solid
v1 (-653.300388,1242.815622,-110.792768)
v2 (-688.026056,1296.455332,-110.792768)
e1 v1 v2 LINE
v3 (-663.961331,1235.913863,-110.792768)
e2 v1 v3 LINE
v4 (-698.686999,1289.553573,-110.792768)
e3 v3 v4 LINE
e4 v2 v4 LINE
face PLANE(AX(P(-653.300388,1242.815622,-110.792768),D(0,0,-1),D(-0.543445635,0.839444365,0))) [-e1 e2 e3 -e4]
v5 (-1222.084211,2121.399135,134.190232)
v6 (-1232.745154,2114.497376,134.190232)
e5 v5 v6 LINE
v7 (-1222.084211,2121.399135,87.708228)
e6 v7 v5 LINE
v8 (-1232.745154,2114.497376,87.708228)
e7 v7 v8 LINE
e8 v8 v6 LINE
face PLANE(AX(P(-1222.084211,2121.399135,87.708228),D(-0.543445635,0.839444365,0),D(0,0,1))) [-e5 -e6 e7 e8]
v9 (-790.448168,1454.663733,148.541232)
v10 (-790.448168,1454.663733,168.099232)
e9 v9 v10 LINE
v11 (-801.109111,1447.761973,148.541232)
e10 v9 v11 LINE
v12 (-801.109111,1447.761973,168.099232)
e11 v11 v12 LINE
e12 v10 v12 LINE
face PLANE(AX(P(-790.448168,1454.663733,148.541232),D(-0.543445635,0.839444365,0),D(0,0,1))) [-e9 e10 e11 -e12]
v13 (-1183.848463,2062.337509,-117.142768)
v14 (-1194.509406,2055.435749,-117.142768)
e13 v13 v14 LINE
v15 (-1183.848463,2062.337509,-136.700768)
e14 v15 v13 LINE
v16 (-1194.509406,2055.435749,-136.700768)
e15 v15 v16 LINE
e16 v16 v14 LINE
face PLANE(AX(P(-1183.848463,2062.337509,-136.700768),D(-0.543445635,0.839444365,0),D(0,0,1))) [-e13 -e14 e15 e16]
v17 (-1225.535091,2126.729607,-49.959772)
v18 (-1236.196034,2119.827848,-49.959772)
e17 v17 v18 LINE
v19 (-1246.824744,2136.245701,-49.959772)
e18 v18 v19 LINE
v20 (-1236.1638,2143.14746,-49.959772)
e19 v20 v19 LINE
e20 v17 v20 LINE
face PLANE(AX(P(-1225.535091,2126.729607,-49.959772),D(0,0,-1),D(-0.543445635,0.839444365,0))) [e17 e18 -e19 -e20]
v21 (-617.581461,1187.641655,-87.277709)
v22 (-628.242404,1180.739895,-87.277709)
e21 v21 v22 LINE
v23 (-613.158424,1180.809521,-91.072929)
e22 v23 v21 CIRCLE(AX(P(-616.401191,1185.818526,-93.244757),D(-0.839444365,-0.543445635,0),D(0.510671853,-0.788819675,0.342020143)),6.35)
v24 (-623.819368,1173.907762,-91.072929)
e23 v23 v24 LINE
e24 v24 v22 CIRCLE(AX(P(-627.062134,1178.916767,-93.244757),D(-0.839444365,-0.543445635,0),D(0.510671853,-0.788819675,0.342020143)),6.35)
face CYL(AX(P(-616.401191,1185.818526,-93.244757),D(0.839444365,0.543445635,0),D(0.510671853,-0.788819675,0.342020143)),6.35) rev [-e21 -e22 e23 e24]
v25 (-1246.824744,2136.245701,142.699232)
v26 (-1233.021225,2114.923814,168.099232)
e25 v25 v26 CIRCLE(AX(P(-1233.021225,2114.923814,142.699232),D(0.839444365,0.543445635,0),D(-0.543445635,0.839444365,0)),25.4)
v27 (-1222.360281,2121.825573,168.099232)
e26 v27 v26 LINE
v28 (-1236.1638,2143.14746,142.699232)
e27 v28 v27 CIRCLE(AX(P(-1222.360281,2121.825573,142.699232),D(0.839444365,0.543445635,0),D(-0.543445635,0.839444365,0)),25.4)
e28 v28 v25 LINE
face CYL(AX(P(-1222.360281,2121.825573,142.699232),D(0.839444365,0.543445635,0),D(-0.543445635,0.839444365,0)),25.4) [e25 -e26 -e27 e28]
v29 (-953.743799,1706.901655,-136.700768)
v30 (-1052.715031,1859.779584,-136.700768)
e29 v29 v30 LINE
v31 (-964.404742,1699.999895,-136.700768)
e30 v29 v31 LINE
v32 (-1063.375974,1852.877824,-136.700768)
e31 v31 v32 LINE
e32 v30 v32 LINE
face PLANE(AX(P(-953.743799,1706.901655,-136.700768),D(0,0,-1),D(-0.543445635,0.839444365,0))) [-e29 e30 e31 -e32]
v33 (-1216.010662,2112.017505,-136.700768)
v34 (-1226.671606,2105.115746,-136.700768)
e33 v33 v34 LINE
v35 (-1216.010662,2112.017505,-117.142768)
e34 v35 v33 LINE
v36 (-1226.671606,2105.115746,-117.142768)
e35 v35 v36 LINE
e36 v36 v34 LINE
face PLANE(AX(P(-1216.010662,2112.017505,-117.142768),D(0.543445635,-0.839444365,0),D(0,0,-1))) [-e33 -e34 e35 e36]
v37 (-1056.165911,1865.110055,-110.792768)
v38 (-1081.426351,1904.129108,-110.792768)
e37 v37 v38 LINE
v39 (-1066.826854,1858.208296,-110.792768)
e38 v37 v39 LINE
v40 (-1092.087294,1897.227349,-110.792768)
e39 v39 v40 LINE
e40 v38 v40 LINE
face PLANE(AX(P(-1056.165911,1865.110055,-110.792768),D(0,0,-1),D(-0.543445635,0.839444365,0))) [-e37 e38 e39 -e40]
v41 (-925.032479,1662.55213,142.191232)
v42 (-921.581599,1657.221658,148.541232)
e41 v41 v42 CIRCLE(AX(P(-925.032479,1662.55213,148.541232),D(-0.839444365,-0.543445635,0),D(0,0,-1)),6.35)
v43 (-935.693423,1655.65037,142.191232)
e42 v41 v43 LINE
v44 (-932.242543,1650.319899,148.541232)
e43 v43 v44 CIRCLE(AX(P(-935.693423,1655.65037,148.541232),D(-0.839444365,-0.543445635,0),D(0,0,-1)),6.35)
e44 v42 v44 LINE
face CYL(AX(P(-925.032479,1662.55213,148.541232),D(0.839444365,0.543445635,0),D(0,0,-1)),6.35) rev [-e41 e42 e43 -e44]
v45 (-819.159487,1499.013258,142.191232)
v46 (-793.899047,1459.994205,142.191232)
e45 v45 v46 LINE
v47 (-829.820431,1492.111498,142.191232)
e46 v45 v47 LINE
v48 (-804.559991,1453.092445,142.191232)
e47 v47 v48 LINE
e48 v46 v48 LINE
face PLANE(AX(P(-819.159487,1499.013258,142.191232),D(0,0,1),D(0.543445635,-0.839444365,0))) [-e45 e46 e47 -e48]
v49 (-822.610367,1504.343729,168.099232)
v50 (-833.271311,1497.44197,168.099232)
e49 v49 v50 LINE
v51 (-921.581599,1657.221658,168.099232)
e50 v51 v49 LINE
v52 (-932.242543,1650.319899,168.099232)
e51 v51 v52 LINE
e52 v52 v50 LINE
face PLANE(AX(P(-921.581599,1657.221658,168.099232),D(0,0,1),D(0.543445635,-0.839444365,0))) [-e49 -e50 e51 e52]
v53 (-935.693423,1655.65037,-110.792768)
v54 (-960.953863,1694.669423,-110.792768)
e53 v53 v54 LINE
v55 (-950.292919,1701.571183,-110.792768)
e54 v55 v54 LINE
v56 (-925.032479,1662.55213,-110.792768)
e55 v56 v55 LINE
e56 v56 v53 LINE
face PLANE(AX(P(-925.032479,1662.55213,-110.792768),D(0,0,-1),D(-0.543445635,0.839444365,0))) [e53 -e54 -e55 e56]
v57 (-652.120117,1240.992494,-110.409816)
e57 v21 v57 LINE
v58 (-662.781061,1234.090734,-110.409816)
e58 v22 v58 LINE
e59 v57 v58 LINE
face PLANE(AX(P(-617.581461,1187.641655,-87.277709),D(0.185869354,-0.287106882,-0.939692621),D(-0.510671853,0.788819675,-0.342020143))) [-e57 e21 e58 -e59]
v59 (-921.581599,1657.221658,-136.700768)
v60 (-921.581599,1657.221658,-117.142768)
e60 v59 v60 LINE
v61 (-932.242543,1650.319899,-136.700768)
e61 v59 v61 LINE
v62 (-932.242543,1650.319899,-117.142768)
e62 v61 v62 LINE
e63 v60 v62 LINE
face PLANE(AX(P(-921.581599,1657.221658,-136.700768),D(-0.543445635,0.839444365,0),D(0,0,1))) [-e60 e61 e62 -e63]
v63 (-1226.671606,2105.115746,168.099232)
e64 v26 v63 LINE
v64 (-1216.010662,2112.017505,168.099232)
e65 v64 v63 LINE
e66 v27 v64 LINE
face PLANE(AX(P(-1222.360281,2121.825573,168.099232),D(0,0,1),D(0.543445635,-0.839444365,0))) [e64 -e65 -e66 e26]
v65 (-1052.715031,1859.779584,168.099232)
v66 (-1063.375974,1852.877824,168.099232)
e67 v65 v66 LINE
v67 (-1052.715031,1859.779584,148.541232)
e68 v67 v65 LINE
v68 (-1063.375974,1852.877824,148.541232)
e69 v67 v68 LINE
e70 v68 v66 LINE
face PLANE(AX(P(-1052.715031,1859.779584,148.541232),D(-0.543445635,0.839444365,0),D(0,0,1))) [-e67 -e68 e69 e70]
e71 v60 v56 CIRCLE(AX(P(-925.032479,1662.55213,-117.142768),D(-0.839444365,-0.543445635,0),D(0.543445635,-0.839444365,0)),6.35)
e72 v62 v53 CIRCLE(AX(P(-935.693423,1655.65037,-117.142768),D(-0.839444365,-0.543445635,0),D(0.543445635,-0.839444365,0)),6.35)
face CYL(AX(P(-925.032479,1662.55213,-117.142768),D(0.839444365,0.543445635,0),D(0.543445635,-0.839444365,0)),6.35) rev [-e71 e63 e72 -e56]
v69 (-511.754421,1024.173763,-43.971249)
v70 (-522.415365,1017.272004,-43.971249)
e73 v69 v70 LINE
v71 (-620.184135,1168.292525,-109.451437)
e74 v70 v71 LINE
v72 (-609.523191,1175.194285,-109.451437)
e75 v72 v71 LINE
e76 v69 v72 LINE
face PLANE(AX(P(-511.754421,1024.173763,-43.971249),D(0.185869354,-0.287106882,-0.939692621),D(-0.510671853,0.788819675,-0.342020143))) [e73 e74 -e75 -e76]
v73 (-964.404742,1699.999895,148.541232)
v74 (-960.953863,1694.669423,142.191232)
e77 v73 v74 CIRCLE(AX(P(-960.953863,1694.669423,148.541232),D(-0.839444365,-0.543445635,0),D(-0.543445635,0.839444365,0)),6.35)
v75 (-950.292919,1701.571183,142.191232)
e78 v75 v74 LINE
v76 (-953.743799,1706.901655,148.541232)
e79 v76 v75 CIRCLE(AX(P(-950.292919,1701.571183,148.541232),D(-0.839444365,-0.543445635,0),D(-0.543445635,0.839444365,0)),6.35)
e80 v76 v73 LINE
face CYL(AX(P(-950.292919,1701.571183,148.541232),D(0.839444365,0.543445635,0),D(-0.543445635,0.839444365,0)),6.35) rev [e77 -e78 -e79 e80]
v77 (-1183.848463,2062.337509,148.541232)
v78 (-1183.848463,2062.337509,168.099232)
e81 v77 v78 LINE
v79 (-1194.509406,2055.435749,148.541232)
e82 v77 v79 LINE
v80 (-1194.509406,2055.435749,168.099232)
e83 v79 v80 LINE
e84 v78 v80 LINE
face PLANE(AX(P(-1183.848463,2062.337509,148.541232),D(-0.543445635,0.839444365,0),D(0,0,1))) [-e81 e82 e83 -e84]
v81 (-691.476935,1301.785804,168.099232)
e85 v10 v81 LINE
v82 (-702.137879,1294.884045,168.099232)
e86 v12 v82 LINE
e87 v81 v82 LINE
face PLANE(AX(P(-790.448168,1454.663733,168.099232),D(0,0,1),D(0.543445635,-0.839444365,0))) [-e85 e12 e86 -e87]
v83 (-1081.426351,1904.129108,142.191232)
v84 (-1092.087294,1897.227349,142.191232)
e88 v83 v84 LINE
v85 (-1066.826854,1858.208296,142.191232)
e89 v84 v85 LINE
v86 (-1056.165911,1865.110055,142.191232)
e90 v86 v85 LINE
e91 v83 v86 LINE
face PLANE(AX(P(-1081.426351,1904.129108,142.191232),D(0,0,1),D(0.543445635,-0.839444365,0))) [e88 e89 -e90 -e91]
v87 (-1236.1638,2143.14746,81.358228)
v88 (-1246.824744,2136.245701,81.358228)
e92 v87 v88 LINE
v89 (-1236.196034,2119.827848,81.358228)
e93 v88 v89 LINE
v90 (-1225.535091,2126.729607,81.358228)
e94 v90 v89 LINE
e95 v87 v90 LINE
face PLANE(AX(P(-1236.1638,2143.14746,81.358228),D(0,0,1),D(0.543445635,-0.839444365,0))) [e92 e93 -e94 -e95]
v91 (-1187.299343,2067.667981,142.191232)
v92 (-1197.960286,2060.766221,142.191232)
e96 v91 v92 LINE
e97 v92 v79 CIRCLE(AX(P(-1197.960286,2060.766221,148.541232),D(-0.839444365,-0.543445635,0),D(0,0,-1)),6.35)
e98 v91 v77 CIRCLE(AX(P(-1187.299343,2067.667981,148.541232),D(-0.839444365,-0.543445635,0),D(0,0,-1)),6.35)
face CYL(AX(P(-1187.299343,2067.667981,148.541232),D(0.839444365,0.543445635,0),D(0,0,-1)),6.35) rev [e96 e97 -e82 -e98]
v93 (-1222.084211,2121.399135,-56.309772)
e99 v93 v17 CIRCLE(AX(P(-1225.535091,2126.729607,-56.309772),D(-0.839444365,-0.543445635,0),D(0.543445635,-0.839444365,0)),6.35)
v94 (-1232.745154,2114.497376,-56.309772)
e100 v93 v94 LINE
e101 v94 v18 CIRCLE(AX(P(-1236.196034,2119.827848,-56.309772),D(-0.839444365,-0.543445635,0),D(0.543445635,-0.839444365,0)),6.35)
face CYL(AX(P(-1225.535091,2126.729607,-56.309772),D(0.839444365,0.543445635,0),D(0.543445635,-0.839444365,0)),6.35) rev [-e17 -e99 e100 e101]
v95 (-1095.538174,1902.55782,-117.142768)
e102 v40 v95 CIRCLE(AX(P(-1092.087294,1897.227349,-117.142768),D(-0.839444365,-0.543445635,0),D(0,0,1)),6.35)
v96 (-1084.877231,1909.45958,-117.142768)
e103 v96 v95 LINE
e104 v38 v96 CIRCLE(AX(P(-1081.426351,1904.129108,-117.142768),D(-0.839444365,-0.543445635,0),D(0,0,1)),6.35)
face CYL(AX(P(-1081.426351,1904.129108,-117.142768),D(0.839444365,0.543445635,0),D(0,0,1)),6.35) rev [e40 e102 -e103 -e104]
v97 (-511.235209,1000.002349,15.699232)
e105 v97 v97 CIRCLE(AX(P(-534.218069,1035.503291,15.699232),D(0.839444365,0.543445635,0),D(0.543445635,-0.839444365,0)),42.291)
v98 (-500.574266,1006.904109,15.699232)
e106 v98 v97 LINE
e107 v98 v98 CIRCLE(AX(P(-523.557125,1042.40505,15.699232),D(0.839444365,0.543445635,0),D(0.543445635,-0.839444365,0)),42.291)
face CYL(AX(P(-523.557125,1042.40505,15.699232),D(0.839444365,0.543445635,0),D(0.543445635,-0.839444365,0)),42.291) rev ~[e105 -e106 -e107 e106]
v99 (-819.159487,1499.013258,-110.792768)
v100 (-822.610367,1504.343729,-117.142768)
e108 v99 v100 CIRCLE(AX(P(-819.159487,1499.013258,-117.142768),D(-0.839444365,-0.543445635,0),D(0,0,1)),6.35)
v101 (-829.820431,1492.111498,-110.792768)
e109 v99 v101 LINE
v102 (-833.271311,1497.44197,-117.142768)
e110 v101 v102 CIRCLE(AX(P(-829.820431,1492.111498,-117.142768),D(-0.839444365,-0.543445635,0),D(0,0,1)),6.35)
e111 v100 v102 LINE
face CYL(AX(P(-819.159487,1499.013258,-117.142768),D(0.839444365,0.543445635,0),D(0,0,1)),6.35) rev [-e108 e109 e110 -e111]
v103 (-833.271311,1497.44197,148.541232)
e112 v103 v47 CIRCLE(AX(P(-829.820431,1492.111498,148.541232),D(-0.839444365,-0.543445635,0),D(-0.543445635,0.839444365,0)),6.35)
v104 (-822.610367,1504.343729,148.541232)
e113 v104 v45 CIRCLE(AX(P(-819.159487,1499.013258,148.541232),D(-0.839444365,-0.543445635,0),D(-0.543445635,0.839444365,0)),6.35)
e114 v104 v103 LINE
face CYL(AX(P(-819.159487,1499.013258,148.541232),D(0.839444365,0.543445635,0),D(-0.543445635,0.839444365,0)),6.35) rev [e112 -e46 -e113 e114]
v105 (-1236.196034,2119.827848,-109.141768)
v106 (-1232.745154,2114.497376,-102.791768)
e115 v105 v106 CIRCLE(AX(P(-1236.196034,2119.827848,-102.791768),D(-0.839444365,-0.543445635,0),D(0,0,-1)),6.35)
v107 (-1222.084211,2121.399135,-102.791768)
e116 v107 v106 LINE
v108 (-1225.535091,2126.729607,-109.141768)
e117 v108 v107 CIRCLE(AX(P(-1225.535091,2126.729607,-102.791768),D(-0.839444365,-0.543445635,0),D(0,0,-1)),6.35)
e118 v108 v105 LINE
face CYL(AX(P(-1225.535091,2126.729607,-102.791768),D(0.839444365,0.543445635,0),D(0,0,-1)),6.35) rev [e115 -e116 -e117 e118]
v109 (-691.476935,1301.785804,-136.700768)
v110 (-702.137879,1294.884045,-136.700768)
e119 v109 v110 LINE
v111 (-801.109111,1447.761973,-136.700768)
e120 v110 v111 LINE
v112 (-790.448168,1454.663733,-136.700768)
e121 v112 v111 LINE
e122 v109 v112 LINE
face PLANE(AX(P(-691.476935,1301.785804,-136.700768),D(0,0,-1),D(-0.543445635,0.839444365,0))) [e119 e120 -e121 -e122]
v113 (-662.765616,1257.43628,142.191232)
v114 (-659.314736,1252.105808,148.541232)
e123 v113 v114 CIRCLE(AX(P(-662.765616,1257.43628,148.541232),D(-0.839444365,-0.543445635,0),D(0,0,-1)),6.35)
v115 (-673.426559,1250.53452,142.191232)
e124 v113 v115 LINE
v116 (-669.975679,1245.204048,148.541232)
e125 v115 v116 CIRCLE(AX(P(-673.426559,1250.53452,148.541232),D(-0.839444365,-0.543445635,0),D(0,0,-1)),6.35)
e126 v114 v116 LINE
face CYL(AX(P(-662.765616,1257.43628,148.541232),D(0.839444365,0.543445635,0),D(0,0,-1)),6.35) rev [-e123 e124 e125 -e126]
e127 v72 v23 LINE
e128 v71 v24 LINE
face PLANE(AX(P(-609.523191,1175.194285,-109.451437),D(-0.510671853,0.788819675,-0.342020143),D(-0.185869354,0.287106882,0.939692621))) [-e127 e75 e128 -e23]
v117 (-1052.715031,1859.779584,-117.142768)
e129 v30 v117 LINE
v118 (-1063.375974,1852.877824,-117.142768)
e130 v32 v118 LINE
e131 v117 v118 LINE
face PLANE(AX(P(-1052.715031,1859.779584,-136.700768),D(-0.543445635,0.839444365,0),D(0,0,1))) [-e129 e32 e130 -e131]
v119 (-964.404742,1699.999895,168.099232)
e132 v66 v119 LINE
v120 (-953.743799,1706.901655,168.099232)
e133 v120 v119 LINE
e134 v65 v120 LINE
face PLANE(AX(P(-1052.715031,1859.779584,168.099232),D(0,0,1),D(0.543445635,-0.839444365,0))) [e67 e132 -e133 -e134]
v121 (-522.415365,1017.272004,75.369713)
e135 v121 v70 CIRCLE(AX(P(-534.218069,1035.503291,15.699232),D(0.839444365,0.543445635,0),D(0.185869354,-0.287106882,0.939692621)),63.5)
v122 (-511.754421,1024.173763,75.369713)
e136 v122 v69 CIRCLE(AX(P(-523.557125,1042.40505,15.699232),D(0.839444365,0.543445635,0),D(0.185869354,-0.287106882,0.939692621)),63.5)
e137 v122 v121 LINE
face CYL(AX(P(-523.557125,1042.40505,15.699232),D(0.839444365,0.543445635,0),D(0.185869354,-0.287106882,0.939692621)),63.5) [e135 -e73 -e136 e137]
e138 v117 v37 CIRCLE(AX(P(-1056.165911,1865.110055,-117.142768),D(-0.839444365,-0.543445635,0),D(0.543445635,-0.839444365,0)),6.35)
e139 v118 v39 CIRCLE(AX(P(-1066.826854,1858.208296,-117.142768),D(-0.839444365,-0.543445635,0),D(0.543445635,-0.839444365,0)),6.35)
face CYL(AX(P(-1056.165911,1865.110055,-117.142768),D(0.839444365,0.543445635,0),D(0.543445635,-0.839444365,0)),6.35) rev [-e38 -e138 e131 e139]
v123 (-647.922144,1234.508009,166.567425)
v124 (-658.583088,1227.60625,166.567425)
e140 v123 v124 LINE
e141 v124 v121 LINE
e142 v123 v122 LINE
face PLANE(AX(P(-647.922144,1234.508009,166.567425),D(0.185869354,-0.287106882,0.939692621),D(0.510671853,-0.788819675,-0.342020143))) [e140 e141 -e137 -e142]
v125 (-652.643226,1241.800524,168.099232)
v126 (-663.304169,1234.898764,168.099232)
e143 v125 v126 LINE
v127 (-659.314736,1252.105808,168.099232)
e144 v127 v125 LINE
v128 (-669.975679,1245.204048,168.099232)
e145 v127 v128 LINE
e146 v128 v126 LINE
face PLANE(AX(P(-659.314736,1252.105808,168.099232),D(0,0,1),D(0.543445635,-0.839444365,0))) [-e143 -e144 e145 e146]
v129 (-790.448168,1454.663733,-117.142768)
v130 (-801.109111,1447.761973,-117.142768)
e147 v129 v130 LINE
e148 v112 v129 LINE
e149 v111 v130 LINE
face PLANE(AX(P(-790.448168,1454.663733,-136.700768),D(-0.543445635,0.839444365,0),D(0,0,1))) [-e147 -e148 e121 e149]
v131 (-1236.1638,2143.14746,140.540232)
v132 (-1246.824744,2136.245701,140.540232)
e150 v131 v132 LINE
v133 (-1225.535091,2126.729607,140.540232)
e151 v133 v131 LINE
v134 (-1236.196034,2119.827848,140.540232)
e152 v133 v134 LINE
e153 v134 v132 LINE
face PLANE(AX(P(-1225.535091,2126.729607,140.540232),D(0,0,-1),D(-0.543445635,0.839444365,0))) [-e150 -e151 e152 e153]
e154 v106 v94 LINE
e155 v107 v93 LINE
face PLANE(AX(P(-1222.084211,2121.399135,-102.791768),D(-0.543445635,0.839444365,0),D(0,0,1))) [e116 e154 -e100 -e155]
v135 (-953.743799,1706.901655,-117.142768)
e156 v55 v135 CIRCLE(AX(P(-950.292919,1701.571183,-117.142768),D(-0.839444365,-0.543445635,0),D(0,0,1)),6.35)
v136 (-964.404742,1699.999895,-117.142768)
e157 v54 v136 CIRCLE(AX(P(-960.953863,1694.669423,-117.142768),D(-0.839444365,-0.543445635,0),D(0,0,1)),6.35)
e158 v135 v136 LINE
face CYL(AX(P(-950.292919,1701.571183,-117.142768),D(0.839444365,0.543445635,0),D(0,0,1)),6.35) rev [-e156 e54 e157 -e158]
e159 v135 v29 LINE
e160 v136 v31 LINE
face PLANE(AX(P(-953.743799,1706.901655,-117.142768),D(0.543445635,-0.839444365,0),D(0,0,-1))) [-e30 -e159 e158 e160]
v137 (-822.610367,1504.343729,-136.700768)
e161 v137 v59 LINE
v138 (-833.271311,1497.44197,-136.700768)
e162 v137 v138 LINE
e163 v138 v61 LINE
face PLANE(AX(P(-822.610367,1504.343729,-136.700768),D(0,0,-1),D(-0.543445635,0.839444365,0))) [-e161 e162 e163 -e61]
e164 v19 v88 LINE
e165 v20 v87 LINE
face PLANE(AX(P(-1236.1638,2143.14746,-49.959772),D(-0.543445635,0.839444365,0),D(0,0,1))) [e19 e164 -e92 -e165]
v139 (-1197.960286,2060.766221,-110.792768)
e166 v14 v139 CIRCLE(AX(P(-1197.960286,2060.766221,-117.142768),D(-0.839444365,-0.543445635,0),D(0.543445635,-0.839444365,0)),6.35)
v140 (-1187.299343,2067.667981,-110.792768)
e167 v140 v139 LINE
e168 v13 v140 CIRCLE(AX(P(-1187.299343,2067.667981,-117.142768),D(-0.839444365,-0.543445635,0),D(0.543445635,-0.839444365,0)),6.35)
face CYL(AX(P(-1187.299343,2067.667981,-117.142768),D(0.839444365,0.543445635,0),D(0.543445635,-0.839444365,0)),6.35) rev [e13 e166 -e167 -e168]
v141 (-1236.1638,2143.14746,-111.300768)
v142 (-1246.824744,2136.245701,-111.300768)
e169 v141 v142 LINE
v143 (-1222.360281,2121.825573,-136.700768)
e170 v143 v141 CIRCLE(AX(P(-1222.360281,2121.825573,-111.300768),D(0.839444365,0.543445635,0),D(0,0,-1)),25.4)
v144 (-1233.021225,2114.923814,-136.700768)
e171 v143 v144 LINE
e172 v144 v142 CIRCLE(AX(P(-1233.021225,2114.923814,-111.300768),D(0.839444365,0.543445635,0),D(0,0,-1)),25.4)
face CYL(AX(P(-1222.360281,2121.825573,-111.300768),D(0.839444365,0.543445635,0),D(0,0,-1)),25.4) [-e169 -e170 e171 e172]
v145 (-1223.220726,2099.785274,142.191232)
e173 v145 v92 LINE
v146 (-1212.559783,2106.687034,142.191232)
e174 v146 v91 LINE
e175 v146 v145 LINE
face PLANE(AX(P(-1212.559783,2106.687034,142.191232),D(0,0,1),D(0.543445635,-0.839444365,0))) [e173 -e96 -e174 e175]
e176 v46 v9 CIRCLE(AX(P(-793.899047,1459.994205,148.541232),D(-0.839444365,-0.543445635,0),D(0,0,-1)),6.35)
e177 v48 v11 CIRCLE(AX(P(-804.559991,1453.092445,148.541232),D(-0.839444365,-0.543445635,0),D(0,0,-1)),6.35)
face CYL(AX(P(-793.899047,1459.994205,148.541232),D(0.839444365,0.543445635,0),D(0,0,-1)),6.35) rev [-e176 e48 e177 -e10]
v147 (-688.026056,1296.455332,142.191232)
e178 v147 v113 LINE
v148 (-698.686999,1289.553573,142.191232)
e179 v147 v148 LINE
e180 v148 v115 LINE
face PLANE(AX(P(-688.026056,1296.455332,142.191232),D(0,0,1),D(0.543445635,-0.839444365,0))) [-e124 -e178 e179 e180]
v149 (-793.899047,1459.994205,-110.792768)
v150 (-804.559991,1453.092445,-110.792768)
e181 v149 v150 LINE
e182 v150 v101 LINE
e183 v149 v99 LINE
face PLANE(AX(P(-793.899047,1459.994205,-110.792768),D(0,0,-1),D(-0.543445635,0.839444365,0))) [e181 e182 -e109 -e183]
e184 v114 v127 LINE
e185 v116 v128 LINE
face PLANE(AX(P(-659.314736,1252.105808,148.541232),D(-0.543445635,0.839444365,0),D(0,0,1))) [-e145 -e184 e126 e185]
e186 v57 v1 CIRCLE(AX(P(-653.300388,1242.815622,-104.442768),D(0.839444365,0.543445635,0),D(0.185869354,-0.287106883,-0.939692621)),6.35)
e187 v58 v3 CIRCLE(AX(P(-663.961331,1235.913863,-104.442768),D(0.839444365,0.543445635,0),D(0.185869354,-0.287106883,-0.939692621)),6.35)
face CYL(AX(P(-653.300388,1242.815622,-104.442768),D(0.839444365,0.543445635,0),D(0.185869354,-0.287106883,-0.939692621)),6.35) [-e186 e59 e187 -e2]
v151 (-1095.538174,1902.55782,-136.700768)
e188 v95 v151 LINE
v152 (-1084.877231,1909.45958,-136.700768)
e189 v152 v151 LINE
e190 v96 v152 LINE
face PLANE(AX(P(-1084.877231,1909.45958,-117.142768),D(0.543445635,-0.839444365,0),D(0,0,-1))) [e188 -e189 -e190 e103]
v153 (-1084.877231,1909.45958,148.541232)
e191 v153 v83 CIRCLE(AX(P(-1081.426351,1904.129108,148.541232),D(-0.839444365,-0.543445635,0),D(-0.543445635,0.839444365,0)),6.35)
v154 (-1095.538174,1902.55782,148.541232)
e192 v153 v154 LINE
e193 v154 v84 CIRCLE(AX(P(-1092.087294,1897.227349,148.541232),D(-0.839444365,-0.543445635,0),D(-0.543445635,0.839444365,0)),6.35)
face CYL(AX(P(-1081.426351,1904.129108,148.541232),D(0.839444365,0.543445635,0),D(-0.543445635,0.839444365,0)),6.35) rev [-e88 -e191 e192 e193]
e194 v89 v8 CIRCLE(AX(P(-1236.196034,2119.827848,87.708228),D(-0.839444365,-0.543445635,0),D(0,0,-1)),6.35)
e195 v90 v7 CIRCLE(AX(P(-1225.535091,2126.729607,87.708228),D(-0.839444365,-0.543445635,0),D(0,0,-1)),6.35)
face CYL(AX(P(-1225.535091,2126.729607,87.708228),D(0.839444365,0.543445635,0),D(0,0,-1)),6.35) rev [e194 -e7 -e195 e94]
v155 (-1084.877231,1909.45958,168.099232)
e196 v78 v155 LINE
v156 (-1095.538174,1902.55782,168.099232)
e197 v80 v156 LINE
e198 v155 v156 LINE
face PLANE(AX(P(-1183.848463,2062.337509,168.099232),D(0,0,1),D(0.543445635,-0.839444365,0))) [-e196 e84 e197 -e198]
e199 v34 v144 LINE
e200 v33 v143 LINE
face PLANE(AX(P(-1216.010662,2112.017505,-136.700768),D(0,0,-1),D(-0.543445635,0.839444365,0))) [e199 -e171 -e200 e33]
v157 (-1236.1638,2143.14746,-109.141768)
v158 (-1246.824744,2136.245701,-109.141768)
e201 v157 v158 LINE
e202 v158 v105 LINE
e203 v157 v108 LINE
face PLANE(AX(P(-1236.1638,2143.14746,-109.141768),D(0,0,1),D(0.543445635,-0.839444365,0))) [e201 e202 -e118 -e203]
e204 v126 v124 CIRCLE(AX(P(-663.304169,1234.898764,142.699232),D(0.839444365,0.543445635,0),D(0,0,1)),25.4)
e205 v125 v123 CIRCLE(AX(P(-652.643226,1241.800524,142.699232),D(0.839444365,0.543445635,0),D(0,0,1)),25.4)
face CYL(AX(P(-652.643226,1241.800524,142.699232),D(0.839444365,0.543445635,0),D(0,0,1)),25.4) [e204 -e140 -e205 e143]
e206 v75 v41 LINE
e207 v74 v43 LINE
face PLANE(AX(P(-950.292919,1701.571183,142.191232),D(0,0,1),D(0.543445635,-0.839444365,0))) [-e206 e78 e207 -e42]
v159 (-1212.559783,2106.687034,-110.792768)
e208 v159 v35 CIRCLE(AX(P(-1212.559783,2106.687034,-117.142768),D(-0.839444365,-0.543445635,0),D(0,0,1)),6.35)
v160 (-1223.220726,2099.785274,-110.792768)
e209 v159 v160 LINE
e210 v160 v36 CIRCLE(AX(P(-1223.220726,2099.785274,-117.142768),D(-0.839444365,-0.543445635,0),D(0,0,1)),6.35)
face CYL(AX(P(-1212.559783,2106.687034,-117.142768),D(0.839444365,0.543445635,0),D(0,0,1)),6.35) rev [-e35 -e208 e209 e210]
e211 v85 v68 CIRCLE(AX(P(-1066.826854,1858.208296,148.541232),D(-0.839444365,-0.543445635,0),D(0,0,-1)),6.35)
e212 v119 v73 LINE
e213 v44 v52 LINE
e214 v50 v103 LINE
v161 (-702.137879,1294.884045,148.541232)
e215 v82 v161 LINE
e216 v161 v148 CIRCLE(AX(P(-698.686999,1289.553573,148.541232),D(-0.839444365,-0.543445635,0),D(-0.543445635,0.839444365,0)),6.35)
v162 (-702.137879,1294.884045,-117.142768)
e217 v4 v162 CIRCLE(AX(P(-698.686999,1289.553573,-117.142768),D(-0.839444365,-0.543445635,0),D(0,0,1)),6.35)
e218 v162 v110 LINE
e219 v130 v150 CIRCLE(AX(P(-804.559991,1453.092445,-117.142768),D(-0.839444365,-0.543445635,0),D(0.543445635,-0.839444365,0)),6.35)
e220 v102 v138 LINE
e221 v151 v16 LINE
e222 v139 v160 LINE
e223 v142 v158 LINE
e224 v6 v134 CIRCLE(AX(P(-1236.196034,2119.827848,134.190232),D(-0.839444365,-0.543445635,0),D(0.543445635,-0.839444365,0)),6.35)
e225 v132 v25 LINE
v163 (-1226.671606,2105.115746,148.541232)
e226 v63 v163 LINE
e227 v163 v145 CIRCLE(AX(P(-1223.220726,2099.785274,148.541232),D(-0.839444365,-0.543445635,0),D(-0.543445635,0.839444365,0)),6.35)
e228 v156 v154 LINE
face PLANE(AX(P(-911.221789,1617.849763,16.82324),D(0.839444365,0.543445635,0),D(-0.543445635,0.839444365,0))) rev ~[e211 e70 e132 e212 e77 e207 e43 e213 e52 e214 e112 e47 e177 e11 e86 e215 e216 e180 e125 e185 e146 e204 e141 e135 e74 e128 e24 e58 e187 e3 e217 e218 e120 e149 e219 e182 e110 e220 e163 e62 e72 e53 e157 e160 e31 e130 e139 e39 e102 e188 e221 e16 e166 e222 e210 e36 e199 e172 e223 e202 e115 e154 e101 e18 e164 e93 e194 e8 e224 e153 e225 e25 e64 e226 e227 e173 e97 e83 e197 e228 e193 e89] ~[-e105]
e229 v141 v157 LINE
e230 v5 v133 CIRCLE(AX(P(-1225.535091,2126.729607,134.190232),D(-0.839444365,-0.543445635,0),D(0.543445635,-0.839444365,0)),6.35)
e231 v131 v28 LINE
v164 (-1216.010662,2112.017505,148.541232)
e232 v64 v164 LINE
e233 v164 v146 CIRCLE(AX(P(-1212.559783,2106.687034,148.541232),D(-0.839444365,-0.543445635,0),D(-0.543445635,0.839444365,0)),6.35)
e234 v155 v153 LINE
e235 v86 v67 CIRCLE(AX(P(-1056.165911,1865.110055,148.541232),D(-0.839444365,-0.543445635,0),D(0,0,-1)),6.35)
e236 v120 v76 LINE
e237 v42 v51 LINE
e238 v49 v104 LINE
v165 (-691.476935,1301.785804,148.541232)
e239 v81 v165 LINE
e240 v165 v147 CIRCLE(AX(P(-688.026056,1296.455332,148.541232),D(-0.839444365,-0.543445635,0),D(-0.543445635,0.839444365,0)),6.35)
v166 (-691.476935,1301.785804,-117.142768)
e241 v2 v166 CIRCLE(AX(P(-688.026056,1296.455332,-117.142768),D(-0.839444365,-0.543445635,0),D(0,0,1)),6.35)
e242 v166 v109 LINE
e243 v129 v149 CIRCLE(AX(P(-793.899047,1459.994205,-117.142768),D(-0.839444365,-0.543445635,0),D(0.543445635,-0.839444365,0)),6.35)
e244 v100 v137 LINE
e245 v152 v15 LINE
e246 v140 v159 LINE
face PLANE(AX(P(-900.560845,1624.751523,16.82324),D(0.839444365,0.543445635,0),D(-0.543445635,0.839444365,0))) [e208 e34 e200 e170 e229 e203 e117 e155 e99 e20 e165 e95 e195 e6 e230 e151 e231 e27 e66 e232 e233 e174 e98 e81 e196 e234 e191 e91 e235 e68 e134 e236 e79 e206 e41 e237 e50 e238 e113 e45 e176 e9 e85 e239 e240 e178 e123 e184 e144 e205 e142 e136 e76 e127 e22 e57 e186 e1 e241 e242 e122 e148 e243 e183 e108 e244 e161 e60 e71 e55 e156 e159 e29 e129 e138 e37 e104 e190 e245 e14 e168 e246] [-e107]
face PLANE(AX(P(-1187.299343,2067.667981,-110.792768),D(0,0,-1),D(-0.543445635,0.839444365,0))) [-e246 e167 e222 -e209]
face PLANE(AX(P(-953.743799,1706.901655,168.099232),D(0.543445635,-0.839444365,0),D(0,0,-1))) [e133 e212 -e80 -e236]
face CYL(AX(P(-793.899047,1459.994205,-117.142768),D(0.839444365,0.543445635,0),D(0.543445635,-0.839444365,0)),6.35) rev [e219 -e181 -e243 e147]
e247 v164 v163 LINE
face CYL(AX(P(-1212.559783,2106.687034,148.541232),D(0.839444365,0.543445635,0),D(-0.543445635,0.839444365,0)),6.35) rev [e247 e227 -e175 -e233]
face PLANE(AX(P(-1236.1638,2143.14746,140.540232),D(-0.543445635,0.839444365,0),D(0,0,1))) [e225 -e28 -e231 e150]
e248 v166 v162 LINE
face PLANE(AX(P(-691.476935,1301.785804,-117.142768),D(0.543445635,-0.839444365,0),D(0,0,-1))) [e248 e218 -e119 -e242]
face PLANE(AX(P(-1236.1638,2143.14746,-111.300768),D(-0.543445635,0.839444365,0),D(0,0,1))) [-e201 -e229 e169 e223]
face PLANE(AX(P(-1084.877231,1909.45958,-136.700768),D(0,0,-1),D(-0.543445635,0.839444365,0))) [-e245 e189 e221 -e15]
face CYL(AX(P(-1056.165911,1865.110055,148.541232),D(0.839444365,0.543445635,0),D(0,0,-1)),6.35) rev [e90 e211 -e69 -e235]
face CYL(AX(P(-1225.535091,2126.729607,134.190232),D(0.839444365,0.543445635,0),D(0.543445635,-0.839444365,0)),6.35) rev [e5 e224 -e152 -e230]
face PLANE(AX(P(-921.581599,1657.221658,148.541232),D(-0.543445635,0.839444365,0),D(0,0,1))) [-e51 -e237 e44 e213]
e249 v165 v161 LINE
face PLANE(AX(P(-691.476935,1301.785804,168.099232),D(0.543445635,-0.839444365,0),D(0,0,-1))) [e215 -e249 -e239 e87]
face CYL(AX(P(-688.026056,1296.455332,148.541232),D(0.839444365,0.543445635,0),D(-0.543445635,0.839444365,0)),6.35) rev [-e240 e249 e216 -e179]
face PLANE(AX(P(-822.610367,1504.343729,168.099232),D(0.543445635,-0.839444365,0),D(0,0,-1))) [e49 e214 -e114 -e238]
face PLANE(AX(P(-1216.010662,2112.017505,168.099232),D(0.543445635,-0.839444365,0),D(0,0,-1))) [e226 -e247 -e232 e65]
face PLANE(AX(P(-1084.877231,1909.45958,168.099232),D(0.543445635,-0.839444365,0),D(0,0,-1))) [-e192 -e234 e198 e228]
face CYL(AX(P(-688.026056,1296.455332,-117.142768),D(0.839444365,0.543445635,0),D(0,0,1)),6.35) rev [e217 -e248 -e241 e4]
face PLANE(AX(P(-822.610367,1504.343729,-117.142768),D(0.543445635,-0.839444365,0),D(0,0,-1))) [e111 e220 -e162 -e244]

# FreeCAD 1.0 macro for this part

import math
import FreeCAD as App
import Part
import Sketcher
Q = App.Units.Quantity

doc = App.newDocument("Part")
params = doc.addObject("Spreadsheet::Sheet", "Params")
for row, (alias, value) in enumerate([
    ("sketch1_radius", "1 in"),
    ("sketch1_radius2", "2.5 in"),
    ("sketch1_diameter", "3.33 in"),
    ("sketch1_radius3", "0.25 in"),
    ("sketch1_width", "0.46 in"),
    ("pad1_length", "0.5 in"),
], start=1):
    params.set(f"A{row}", alias)
    params.set(f"B{row}", "=" + value)
    params.setAlias(f"B{row}", alias)

body = doc.addObject("PartDesign::Body", "Body")

# Sketch on an angled plane
sketch1 = doc.addObject("Sketcher::SketchObject", "Sketch")
body.addObject(sketch1)
sketch1.Placement = App.Placement(App.Vector(106.603891, 69.014007, 0), App.Rotation(App.Vector(-0.543445635, 0.839444365, 0), App.Vector(0, 0, 1), App.Vector(0.839444365, 0.543445635, 0), "ZXY"))
sketch1.addGeometry([
    Part.LineSegment(App.Vector(2433.8, -117.1, 0), App.Vector(2433.8, -136.7, 0)),  # 0
    Part.LineSegment(App.Vector(2433.8, -136.7, 0), App.Vector(2445.4, -136.7, 0)),  # 1
    Part.ArcOfCircle(Part.Circle(App.Vector(2445.4, -111.3, 0), App.Vector(0, 0, 1), 25.4), math.radians(-90), math.radians(0)),  # 2
    Part.LineSegment(App.Vector(2470.8, -111.3, 0), App.Vector(2470.8, -109.1, 0)),  # 3
    Part.LineSegment(App.Vector(2470.8, -109.1, 0), App.Vector(2451.3, -109.1, 0)),  # 4
    Part.ArcOfCircle(Part.Circle(App.Vector(2451.3, -102.8, 0), App.Vector(0, 0, 1), 6.3), math.radians(180), math.radians(270)),  # 5
    Part.LineSegment(App.Vector(2444.9, -102.8, 0), App.Vector(2444.9, -56.3, 0)),  # 6
    Part.ArcOfCircle(Part.Circle(App.Vector(2451.3, -56.3, 0), App.Vector(0, 0, 1), 6.3), math.radians(90), math.radians(180)),  # 7
    Part.LineSegment(App.Vector(2451.3, -50, 0), App.Vector(2470.8, -50, 0)),  # 8
    Part.LineSegment(App.Vector(2470.8, -50, 0), App.Vector(2470.8, 81.4, 0)),  # 9
    Part.LineSegment(App.Vector(2470.8, 81.4, 0), App.Vector(2451.3, 81.4, 0)),  # 10
    Part.ArcOfCircle(Part.Circle(App.Vector(2451.3, 87.7, 0), App.Vector(0, 0, 1), 6.3), math.radians(180), math.radians(270)),  # 11
    Part.LineSegment(App.Vector(2444.9, 87.7, 0), App.Vector(2444.9, 134.2, 0)),  # 12
    Part.ArcOfCircle(Part.Circle(App.Vector(2451.3, 134.2, 0), App.Vector(0, 0, 1), 6.3), math.radians(90), math.radians(180)),  # 13
    Part.LineSegment(App.Vector(2451.3, 140.5, 0), App.Vector(2470.8, 140.5, 0)),  # 14
    Part.LineSegment(App.Vector(2470.8, 140.5, 0), App.Vector(2470.8, 142.7, 0)),  # 15
    Part.ArcOfCircle(Part.Circle(App.Vector(2445.4, 142.7, 0), App.Vector(0, 0, 1), 25.4), math.radians(0), math.radians(90)),  # 16
    Part.LineSegment(App.Vector(2445.4, 168.1, 0), App.Vector(2433.8, 168.1, 0)),  # 17
    Part.LineSegment(App.Vector(2433.8, 168.1, 0), App.Vector(2433.8, 148.5, 0)),  # 18
    Part.ArcOfCircle(Part.Circle(App.Vector(2427.4, 148.5, 0), App.Vector(0, 0, 1), 6.3), math.radians(-90), math.radians(0)),  # 19
    Part.LineSegment(App.Vector(2427.4, 142.2, 0), App.Vector(2380.9, 142.2, 0)),  # 20
    Part.ArcOfCircle(Part.Circle(App.Vector(2380.9, 148.5, 0), App.Vector(0, 0, 1), 6.3), math.radians(180), math.radians(270)),  # 21
    Part.LineSegment(App.Vector(2374.6, 148.5, 0), App.Vector(2374.6, 168.1, 0)),  # 22
    Part.LineSegment(App.Vector(2374.6, 168.1, 0), App.Vector(2192.5, 168.1, 0)),  # 23
    Part.LineSegment(App.Vector(2192.5, 168.1, 0), App.Vector(2192.5, 148.5, 0)),  # 24
    Part.ArcOfCircle(Part.Circle(App.Vector(2186.1, 148.5, 0), App.Vector(0, 0, 1), 6.3), math.radians(-90), math.radians(0)),  # 25
    Part.LineSegment(App.Vector(2186.1, 142.2, 0), App.Vector(2139.6, 142.2, 0)),  # 26
    Part.ArcOfCircle(Part.Circle(App.Vector(2139.6, 148.5, 0), App.Vector(0, 0, 1), 6.3), math.radians(180), math.radians(270)),  # 27
    Part.LineSegment(App.Vector(2133.3, 148.5, 0), App.Vector(2133.3, 168.1, 0)),  # 28
    Part.LineSegment(App.Vector(2133.3, 168.1, 0), App.Vector(1951.2, 168.1, 0)),  # 29
    Part.LineSegment(App.Vector(1951.2, 168.1, 0), App.Vector(1951.2, 148.5, 0)),  # 30
    Part.ArcOfCircle(Part.Circle(App.Vector(1944.8, 148.5, 0), App.Vector(0, 0, 1), 6.3), math.radians(-90), math.radians(0)),  # 31
    Part.LineSegment(App.Vector(1944.8, 142.2, 0), App.Vector(1898.3, 142.2, 0)),  # 32
    Part.ArcOfCircle(Part.Circle(App.Vector(1898.3, 148.5, 0), App.Vector(0, 0, 1), 6.3), math.radians(180), math.radians(270)),  # 33
    Part.LineSegment(App.Vector(1892, 148.5, 0), App.Vector(1892, 168.1, 0)),  # 34
    Part.LineSegment(App.Vector(1892, 168.1, 0), App.Vector(1709.9, 168.1, 0)),  # 35
    Part.LineSegment(App.Vector(1709.9, 168.1, 0), App.Vector(1709.9, 148.5, 0)),  # 36
    Part.ArcOfCircle(Part.Circle(App.Vector(1703.5, 148.5, 0), App.Vector(0, 0, 1), 6.3), math.radians(-90), math.radians(0)),  # 37
    Part.LineSegment(App.Vector(1703.5, 142.2, 0), App.Vector(1657, 142.2, 0)),  # 38
    Part.ArcOfCircle(Part.Circle(App.Vector(1657, 148.5, 0), App.Vector(0, 0, 1), 6.3), math.radians(180), math.radians(270)),  # 39
    Part.LineSegment(App.Vector(1650.7, 148.5, 0), App.Vector(1650.7, 168.1, 0)),  # 40
    Part.LineSegment(App.Vector(1650.7, 168.1, 0), App.Vector(1468.6, 168.1, 0)),  # 41
    Part.LineSegment(App.Vector(1468.6, 168.1, 0), App.Vector(1468.6, 148.5, 0)),  # 42
    Part.ArcOfCircle(Part.Circle(App.Vector(1462.2, 148.5, 0), App.Vector(0, 0, 1), 6.3), math.radians(-90), math.radians(0)),  # 43
    Part.LineSegment(App.Vector(1462.2, 142.2, 0), App.Vector(1415.7, 142.2, 0)),  # 44
    Part.ArcOfCircle(Part.Circle(App.Vector(1415.7, 148.5, 0), App.Vector(0, 0, 1), 6.3), math.radians(180), math.radians(270)),  # 45
    Part.LineSegment(App.Vector(1409.4, 148.5, 0), App.Vector(1409.4, 168.1, 0)),  # 46
    Part.LineSegment(App.Vector(1409.4, 168.1, 0), App.Vector(1397.1, 168.1, 0)),  # 47
    Part.ArcOfCircle(Part.Circle(App.Vector(1397.1, 142.7, 0), App.Vector(0, 0, 1), 25.4), math.radians(90), math.radians(110)),  # 48
    Part.LineSegment(App.Vector(1388.4, 166.6, 0), App.Vector(1137.8, 75.4, 0)),  # 49
    Part.ArcOfCircle(Part.Circle(App.Vector(1159.6, 15.7, 0), App.Vector(0, 0, 1), 63.5), math.radians(110), math.radians(250)),  # 50
    Part.LineSegment(App.Vector(1137.8, -44, 0), App.Vector(1317.8, -109.5, 0)),  # 51
    Part.LineSegment(App.Vector(1317.8, -109.5, 0), App.Vector(1324.4, -91.1, 0)),  # 52
    Part.ArcOfCircle(Part.Circle(App.Vector(1330.4, -93.2, 0), App.Vector(0, 0, 1), 6.3), math.radians(70), math.radians(160)),  # 53
    Part.LineSegment(App.Vector(1332.6, -87.3, 0), App.Vector(1396.1, -110.4, 0)),  # 54
    Part.ArcOfCircle(Part.Circle(App.Vector(1398.3, -104.4, 0), App.Vector(0, 0, 1), 6.3), math.radians(-110), math.radians(-90)),  # 55
    Part.LineSegment(App.Vector(1398.3, -110.8, 0), App.Vector(1462.2, -110.8, 0)),  # 56
    Part.ArcOfCircle(Part.Circle(App.Vector(1462.2, -117.1, 0), App.Vector(0, 0, 1), 6.3), math.radians(0), math.radians(90)),  # 57
    Part.LineSegment(App.Vector(1468.6, -117.1, 0), App.Vector(1468.6, -136.7, 0)),  # 58
    Part.LineSegment(App.Vector(1468.6, -136.7, 0), App.Vector(1650.7, -136.7, 0)),  # 59
    Part.LineSegment(App.Vector(1650.7, -136.7, 0), App.Vector(1650.7, -117.1, 0)),  # 60
    Part.ArcOfCircle(Part.Circle(App.Vector(1657, -117.1, 0), App.Vector(0, 0, 1), 6.3), math.radians(90), math.radians(180)),  # 61
    Part.LineSegment(App.Vector(1657, -110.8, 0), App.Vector(1703.5, -110.8, 0)),  # 62
    Part.ArcOfCircle(Part.Circle(App.Vector(1703.5, -117.1, 0), App.Vector(0, 0, 1), 6.3), math.radians(0), math.radians(90)),  # 63
    Part.LineSegment(App.Vector(1709.9, -117.1, 0), App.Vector(1709.9, -136.7, 0)),  # 64
    Part.LineSegment(App.Vector(1709.9, -136.7, 0), App.Vector(1892, -136.7, 0)),  # 65
    Part.LineSegment(App.Vector(1892, -136.7, 0), App.Vector(1892, -117.1, 0)),  # 66
    Part.ArcOfCircle(Part.Circle(App.Vector(1898.3, -117.1, 0), App.Vector(0, 0, 1), 6.3), math.radians(90), math.radians(180)),  # 67
    Part.LineSegment(App.Vector(1898.3, -110.8, 0), App.Vector(1944.8, -110.8, 0)),  # 68
    Part.ArcOfCircle(Part.Circle(App.Vector(1944.8, -117.1, 0), App.Vector(0, 0, 1), 6.3), math.radians(0), math.radians(90)),  # 69
    Part.LineSegment(App.Vector(1951.2, -117.1, 0), App.Vector(1951.2, -136.7, 0)),  # 70
    Part.LineSegment(App.Vector(1951.2, -136.7, 0), App.Vector(2133.3, -136.7, 0)),  # 71
    Part.LineSegment(App.Vector(2133.3, -136.7, 0), App.Vector(2133.3, -117.1, 0)),  # 72
    Part.ArcOfCircle(Part.Circle(App.Vector(2139.6, -117.1, 0), App.Vector(0, 0, 1), 6.3), math.radians(90), math.radians(180)),  # 73
    Part.LineSegment(App.Vector(2139.6, -110.8, 0), App.Vector(2186.1, -110.8, 0)),  # 74
    Part.ArcOfCircle(Part.Circle(App.Vector(2186.1, -117.1, 0), App.Vector(0, 0, 1), 6.3), math.radians(0), math.radians(90)),  # 75
    Part.LineSegment(App.Vector(2192.5, -117.1, 0), App.Vector(2192.5, -136.7, 0)),  # 76
    Part.LineSegment(App.Vector(2192.5, -136.7, 0), App.Vector(2374.6, -136.7, 0)),  # 77
    Part.LineSegment(App.Vector(2374.6, -136.7, 0), App.Vector(2374.6, -117.1, 0)),  # 78
    Part.ArcOfCircle(Part.Circle(App.Vector(2380.9, -117.1, 0), App.Vector(0, 0, 1), 6.3), math.radians(90), math.radians(180)),  # 79
    Part.LineSegment(App.Vector(2380.9, -110.8, 0), App.Vector(2427.4, -110.8, 0)),  # 80
    Part.ArcOfCircle(Part.Circle(App.Vector(2427.4, -117.1, 0), App.Vector(0, 0, 1), 6.3), math.radians(0), math.radians(90)),  # 81
    Part.Circle(App.Vector(1159.6, 15.7, 0), App.Vector(0, 0, 1), 42.3),  # 82
], False)
sketch1.addConstraint([
    Sketcher.Constraint("Coincident", 0, 2, 1, 1),
    Sketcher.Constraint("Tangent", 1, 2, 2, 1),
    Sketcher.Constraint("Tangent", 2, 2, 3, 1),
    Sketcher.Constraint("Coincident", 3, 2, 4, 1),
    Sketcher.Constraint("Tangent", 4, 2, 5, 2),
    Sketcher.Constraint("Tangent", 5, 1, 6, 1),
    Sketcher.Constraint("Tangent", 6, 2, 7, 2),
    Sketcher.Constraint("Tangent", 7, 1, 8, 1),
    Sketcher.Constraint("Coincident", 8, 2, 9, 1),
    Sketcher.Constraint("Coincident", 9, 2, 10, 1),
    Sketcher.Constraint("Tangent", 10, 2, 11, 2),
    Sketcher.Constraint("Tangent", 11, 1, 12, 1),
    Sketcher.Constraint("Tangent", 12, 2, 13, 2),
    Sketcher.Constraint("Tangent", 13, 1, 14, 1),
    Sketcher.Constraint("Coincident", 14, 2, 15, 1),
    Sketcher.Constraint("Tangent", 15, 2, 16, 1),
    Sketcher.Constraint("Tangent", 16, 2, 17, 1),
    Sketcher.Constraint("Coincident", 17, 2, 18, 1),
    Sketcher.Constraint("Tangent", 18, 2, 19, 2),
    Sketcher.Constraint("Tangent", 19, 1, 20, 1),
    Sketcher.Constraint("Tangent", 20, 2, 21, 2),
    Sketcher.Constraint("Tangent", 21, 1, 22, 1),
    Sketcher.Constraint("Coincident", 22, 2, 23, 1),
    Sketcher.Constraint("Coincident", 23, 2, 24, 1),
    Sketcher.Constraint("Tangent", 24, 2, 25, 2),
    Sketcher.Constraint("Tangent", 25, 1, 26, 1),
    Sketcher.Constraint("Tangent", 26, 2, 27, 2),
    Sketcher.Constraint("Tangent", 27, 1, 28, 1),
    Sketcher.Constraint("Coincident", 28, 2, 29, 1),
    Sketcher.Constraint("Coincident", 29, 2, 30, 1),
    Sketcher.Constraint("Tangent", 30, 2, 31, 2),
    Sketcher.Constraint("Tangent", 31, 1, 32, 1),
    Sketcher.Constraint("Tangent", 32, 2, 33, 2),
    Sketcher.Constraint("Tangent", 33, 1, 34, 1),
    Sketcher.Constraint("Coincident", 34, 2, 35, 1),
    Sketcher.Constraint("Coincident", 35, 2, 36, 1),
    Sketcher.Constraint("Tangent", 36, 2, 37, 2),
    Sketcher.Constraint("Tangent", 37, 1, 38, 1),
    Sketcher.Constraint("Tangent", 38, 2, 39, 2),
    Sketcher.Constraint("Tangent", 39, 1, 40, 1),
    Sketcher.Constraint("Coincident", 40, 2, 41, 1),
    Sketcher.Constraint("Coincident", 41, 2, 42, 1),
    Sketcher.Constraint("Tangent", 42, 2, 43, 2),
    Sketcher.Constraint("Tangent", 43, 1, 44, 1),
    Sketcher.Constraint("Tangent", 44, 2, 45, 2),
    Sketcher.Constraint("Tangent", 45, 1, 46, 1),
    Sketcher.Constraint("Coincident", 46, 2, 47, 1),
    Sketcher.Constraint("Tangent", 47, 2, 48, 1),
    Sketcher.Constraint("Tangent", 48, 2, 49, 1),
    Sketcher.Constraint("Tangent", 49, 2, 50, 1),
    Sketcher.Constraint("Tangent", 50, 2, 51, 1),
    Sketcher.Constraint("Coincident", 51, 2, 52, 1),
    Sketcher.Constraint("Tangent", 52, 2, 53, 2),
    Sketcher.Constraint("Tangent", 53, 1, 54, 1),
    Sketcher.Constraint("Tangent", 54, 2, 55, 1),
    Sketcher.Constraint("Tangent", 55, 2, 56, 1),
    Sketcher.Constraint("Tangent", 56, 2, 57, 2),
    Sketcher.Constraint("Tangent", 57, 1, 58, 1),
    Sketcher.Constraint("Coincident", 58, 2, 59, 1),
    Sketcher.Constraint("Coincident", 59, 2, 60, 1),
    Sketcher.Constraint("Tangent", 60, 2, 61, 2),
    Sketcher.Constraint("Tangent", 61, 1, 62, 1),
    Sketcher.Constraint("Tangent", 62, 2, 63, 2),
    Sketcher.Constraint("Tangent", 63, 1, 64, 1),
    Sketcher.Constraint("Coincident", 64, 2, 65, 1),
    Sketcher.Constraint("Coincident", 65, 2, 66, 1),
    Sketcher.Constraint("Tangent", 66, 2, 67, 2),
    Sketcher.Constraint("Tangent", 67, 1, 68, 1),
    Sketcher.Constraint("Tangent", 68, 2, 69, 2),
    Sketcher.Constraint("Tangent", 69, 1, 70, 1),
    Sketcher.Constraint("Coincident", 70, 2, 71, 1),
    Sketcher.Constraint("Coincident", 71, 2, 72, 1),
    Sketcher.Constraint("Tangent", 72, 2, 73, 2),
    Sketcher.Constraint("Tangent", 73, 1, 74, 1),
    Sketcher.Constraint("Tangent", 74, 2, 75, 2),
    Sketcher.Constraint("Tangent", 75, 1, 76, 1),
    Sketcher.Constraint("Coincident", 76, 2, 77, 1),
    Sketcher.Constraint("Coincident", 77, 2, 78, 1),
    Sketcher.Constraint("Tangent", 78, 2, 79, 2),
    Sketcher.Constraint("Tangent", 79, 1, 80, 1),
    Sketcher.Constraint("Tangent", 80, 2, 81, 2),
    Sketcher.Constraint("Tangent", 81, 1, 0, 1),
    Sketcher.Constraint("Vertical", 0),
    Sketcher.Constraint("Horizontal", 1),
    Sketcher.Constraint("Vertical", 3),
    Sketcher.Constraint("Horizontal", 4),
    Sketcher.Constraint("Vertical", 6),
    Sketcher.Constraint("Horizontal", 8),
    Sketcher.Constraint("Vertical", 9),
    Sketcher.Constraint("Horizontal", 10),
    Sketcher.Constraint("Vertical", 12),
    Sketcher.Constraint("Horizontal", 14),
    Sketcher.Constraint("Vertical", 15),
    Sketcher.Constraint("Horizontal", 17),
    Sketcher.Constraint("Vertical", 18),
    Sketcher.Constraint("Horizontal", 20),
    Sketcher.Constraint("Vertical", 22),
    Sketcher.Constraint("Horizontal", 23),
    Sketcher.Constraint("Vertical", 24),
    Sketcher.Constraint("Horizontal", 26),
    Sketcher.Constraint("Vertical", 28),
    Sketcher.Constraint("Horizontal", 29),
    Sketcher.Constraint("Vertical", 30),
    Sketcher.Constraint("Horizontal", 32),
    Sketcher.Constraint("Vertical", 34),
    Sketcher.Constraint("Horizontal", 35),
    Sketcher.Constraint("Vertical", 36),
    Sketcher.Constraint("Horizontal", 38),
    Sketcher.Constraint("Vertical", 40),
    Sketcher.Constraint("Horizontal", 41),
    Sketcher.Constraint("Vertical", 42),
    Sketcher.Constraint("Horizontal", 44),
    Sketcher.Constraint("Vertical", 46),
    Sketcher.Constraint("Horizontal", 47),
    Sketcher.Constraint("Horizontal", 56),
    Sketcher.Constraint("Vertical", 58),
    Sketcher.Constraint("Horizontal", 59),
    Sketcher.Constraint("Vertical", 60),
    Sketcher.Constraint("Horizontal", 62),
    Sketcher.Constraint("Vertical", 64),
    Sketcher.Constraint("Horizontal", 65),
    Sketcher.Constraint("Vertical", 66),
    Sketcher.Constraint("Horizontal", 68),
    Sketcher.Constraint("Vertical", 70),
    Sketcher.Constraint("Horizontal", 71),
    Sketcher.Constraint("Vertical", 72),
    Sketcher.Constraint("Horizontal", 74),
    Sketcher.Constraint("Vertical", 76),
    Sketcher.Constraint("Horizontal", 77),
    Sketcher.Constraint("Vertical", 78),
    Sketcher.Constraint("Horizontal", 80),
    Sketcher.Constraint("Coincident", 82, 3, 50, 3),
    Sketcher.Constraint("Equal", 5, 7),
    Sketcher.Constraint("Equal", 7, 11),
    Sketcher.Constraint("Equal", 11, 13),
    Sketcher.Constraint("Equal", 2, 16),
    Sketcher.Constraint("Equal", 13, 19),
    Sketcher.Constraint("Equal", 19, 21),
    Sketcher.Constraint("Equal", 21, 25),
    Sketcher.Constraint("Equal", 25, 27),
    Sketcher.Constraint("Equal", 27, 31),
    Sketcher.Constraint("Equal", 31, 33),
    Sketcher.Constraint("Equal", 33, 37),
    Sketcher.Constraint("Equal", 37, 39),
    Sketcher.Constraint("Equal", 39, 43),
    Sketcher.Constraint("Equal", 43, 45),
    Sketcher.Constraint("Equal", 16, 48),
    Sketcher.Constraint("Equal", 45, 53),
    Sketcher.Constraint("Equal", 53, 55),
    Sketcher.Constraint("Equal", 55, 57),
    Sketcher.Constraint("Equal", 57, 61),
    Sketcher.Constraint("Equal", 61, 63),
    Sketcher.Constraint("Equal", 63, 67),
    Sketcher.Constraint("Equal", 67, 69),
    Sketcher.Constraint("Equal", 69, 73),
    Sketcher.Constraint("Equal", 73, 75),
    Sketcher.Constraint("Equal", 75, 79),
    Sketcher.Constraint("Equal", 79, 81),
    Sketcher.Constraint("Perpendicular", 51, 52),
    Sketcher.Constraint("Perpendicular", 52, 54),
    Sketcher.Constraint("Horizontal", 21, 3, 25, 3),
    Sketcher.Constraint("Horizontal", 27, 3, 31, 3),
    Sketcher.Constraint("Horizontal", 33, 3, 37, 3),
    Sketcher.Constraint("Horizontal", 39, 3, 43, 3),
    Sketcher.Constraint("Horizontal", 16, 3, 48, 3),
    Sketcher.Constraint("Horizontal", 57, 3, 61, 3),
    Sketcher.Constraint("Horizontal", 63, 3, 67, 3),
    Sketcher.Constraint("Horizontal", 69, 3, 73, 3),
    Sketcher.Constraint("Horizontal", 75, 3, 79, 3),
    Sketcher.Constraint("Horizontal", 17, 2, 22, 2),
    Sketcher.Constraint("Horizontal", 23, 2, 28, 2),
    Sketcher.Constraint("Horizontal", 29, 2, 34, 2),
    Sketcher.Constraint("Horizontal", 35, 2, 40, 2),
    Sketcher.Constraint("Horizontal", 1, 2, 58, 2),
    Sketcher.Constraint("Horizontal", 59, 2, 64, 2),
    Sketcher.Constraint("Horizontal", 65, 2, 70, 2),
    Sketcher.Constraint("Horizontal", 71, 2, 76, 2),
    Sketcher.Constraint("Vertical", 7, 3, 11, 3),
    Sketcher.Constraint("Vertical", 2, 3, 16, 3),
    Sketcher.Constraint("Vertical", 43, 3, 57, 3),
    Sketcher.Constraint("Vertical", 39, 3, 61, 3),
    Sketcher.Constraint("Vertical", 37, 3, 63, 3),
    Sketcher.Constraint("Vertical", 33, 3, 67, 3),
    Sketcher.Constraint("Vertical", 31, 3, 69, 3),
    Sketcher.Constraint("Vertical", 27, 3, 73, 3),
    Sketcher.Constraint("Vertical", 25, 3, 75, 3),
    Sketcher.Constraint("Vertical", 21, 3, 79, 3),
    Sketcher.Constraint("Vertical", 19, 3, 81, 3),
    Sketcher.Constraint("Vertical", 3, 2, 8, 2),
    Sketcher.Constraint("Vertical", 49, 2, 50, 2),
    Sketcher.Constraint("Equal", 20, 26),
    Sketcher.Constraint("Equal", 23, 29),
    Sketcher.Constraint("Equal", 26, 32),
    Sketcher.Constraint("Equal", 29, 35),
    Sketcher.Constraint("Equal", 32, 38),
    Sketcher.Constraint("Equal", 35, 41),
    Sketcher.Constraint("Equal", 38, 44),
    Sketcher.Constraint("Equal", 14, 0),
    Sketcher.Constraint("Equal", 3, 15),
    Sketcher.Constraint("Equal", 0, 18),
    Sketcher.Constraint("Radius", 2, Q("1 in")),
    Sketcher.Constraint("Radius", 50, Q("2.5 in")),
    Sketcher.Constraint("Diameter", 82, Q("3.33 in")),
    Sketcher.Constraint("Radius", 5, Q("0.25 in")),
    Sketcher.Constraint("Angle", 49, Q("-160 deg")),
    Sketcher.Constraint("DistanceX", 1, 1, 1, 2, Q("0.46 in")),
    Sketcher.Constraint("DistanceX", 4, 2, 4, 1, Q("0.77 in")),
    Sketcher.Constraint("DistanceX", 20, 2, 20, 1, Q("1.83 in")),
    Sketcher.Constraint("DistanceX", 23, 2, 23, 1, Q("7.17 in")),
    Sketcher.Constraint("DistanceY", 6, 1, 6, 2, Q("1.8299998 in")),
    Sketcher.Constraint("DistanceY", 9, 1, 9, 2, Q("5.17 in")),
    Sketcher.Constraint("DistanceY", 12, 1, 12, 2, Q("1.8300002 in")),
    Sketcher.Constraint("Distance", 52, Q("0.77 in")),
    Sketcher.Constraint("DistanceY", 3, 1, 3, 2, Q("0.085 in")),
    Sketcher.Constraint("DistanceX", -1, 1, 2, 3, Q("96.2772 in")),
    Sketcher.Constraint("DistanceX", -1, 1, 50, 3, Q("45.6522 in")),
    Sketcher.Constraint("Distance", 49, Q("266.644269 mm")),
    Sketcher.Constraint("Distance", 51, Q("191.451261 mm")),
    Sketcher.Constraint("DistanceY", 2, 3, -1, 1, Q("111.300768 mm")),
])
sketch1.setExpression("Constraints[200]", "Params.sketch1_radius")
sketch1.setExpression("Constraints[201]", "Params.sketch1_radius2")
sketch1.setExpression("Constraints[202]", "Params.sketch1_diameter")
sketch1.setExpression("Constraints[203]", "Params.sketch1_radius3")
sketch1.setExpression("Constraints[205]", "Params.sketch1_width")
pad1 = doc.addObject("PartDesign::Pad", "Pad")
body.addObject(pad1)
pad1.Profile = sketch1
pad1.setExpression("Length", "Params.pad1_length")
pad1.Reversed = True

doc.recompute()
